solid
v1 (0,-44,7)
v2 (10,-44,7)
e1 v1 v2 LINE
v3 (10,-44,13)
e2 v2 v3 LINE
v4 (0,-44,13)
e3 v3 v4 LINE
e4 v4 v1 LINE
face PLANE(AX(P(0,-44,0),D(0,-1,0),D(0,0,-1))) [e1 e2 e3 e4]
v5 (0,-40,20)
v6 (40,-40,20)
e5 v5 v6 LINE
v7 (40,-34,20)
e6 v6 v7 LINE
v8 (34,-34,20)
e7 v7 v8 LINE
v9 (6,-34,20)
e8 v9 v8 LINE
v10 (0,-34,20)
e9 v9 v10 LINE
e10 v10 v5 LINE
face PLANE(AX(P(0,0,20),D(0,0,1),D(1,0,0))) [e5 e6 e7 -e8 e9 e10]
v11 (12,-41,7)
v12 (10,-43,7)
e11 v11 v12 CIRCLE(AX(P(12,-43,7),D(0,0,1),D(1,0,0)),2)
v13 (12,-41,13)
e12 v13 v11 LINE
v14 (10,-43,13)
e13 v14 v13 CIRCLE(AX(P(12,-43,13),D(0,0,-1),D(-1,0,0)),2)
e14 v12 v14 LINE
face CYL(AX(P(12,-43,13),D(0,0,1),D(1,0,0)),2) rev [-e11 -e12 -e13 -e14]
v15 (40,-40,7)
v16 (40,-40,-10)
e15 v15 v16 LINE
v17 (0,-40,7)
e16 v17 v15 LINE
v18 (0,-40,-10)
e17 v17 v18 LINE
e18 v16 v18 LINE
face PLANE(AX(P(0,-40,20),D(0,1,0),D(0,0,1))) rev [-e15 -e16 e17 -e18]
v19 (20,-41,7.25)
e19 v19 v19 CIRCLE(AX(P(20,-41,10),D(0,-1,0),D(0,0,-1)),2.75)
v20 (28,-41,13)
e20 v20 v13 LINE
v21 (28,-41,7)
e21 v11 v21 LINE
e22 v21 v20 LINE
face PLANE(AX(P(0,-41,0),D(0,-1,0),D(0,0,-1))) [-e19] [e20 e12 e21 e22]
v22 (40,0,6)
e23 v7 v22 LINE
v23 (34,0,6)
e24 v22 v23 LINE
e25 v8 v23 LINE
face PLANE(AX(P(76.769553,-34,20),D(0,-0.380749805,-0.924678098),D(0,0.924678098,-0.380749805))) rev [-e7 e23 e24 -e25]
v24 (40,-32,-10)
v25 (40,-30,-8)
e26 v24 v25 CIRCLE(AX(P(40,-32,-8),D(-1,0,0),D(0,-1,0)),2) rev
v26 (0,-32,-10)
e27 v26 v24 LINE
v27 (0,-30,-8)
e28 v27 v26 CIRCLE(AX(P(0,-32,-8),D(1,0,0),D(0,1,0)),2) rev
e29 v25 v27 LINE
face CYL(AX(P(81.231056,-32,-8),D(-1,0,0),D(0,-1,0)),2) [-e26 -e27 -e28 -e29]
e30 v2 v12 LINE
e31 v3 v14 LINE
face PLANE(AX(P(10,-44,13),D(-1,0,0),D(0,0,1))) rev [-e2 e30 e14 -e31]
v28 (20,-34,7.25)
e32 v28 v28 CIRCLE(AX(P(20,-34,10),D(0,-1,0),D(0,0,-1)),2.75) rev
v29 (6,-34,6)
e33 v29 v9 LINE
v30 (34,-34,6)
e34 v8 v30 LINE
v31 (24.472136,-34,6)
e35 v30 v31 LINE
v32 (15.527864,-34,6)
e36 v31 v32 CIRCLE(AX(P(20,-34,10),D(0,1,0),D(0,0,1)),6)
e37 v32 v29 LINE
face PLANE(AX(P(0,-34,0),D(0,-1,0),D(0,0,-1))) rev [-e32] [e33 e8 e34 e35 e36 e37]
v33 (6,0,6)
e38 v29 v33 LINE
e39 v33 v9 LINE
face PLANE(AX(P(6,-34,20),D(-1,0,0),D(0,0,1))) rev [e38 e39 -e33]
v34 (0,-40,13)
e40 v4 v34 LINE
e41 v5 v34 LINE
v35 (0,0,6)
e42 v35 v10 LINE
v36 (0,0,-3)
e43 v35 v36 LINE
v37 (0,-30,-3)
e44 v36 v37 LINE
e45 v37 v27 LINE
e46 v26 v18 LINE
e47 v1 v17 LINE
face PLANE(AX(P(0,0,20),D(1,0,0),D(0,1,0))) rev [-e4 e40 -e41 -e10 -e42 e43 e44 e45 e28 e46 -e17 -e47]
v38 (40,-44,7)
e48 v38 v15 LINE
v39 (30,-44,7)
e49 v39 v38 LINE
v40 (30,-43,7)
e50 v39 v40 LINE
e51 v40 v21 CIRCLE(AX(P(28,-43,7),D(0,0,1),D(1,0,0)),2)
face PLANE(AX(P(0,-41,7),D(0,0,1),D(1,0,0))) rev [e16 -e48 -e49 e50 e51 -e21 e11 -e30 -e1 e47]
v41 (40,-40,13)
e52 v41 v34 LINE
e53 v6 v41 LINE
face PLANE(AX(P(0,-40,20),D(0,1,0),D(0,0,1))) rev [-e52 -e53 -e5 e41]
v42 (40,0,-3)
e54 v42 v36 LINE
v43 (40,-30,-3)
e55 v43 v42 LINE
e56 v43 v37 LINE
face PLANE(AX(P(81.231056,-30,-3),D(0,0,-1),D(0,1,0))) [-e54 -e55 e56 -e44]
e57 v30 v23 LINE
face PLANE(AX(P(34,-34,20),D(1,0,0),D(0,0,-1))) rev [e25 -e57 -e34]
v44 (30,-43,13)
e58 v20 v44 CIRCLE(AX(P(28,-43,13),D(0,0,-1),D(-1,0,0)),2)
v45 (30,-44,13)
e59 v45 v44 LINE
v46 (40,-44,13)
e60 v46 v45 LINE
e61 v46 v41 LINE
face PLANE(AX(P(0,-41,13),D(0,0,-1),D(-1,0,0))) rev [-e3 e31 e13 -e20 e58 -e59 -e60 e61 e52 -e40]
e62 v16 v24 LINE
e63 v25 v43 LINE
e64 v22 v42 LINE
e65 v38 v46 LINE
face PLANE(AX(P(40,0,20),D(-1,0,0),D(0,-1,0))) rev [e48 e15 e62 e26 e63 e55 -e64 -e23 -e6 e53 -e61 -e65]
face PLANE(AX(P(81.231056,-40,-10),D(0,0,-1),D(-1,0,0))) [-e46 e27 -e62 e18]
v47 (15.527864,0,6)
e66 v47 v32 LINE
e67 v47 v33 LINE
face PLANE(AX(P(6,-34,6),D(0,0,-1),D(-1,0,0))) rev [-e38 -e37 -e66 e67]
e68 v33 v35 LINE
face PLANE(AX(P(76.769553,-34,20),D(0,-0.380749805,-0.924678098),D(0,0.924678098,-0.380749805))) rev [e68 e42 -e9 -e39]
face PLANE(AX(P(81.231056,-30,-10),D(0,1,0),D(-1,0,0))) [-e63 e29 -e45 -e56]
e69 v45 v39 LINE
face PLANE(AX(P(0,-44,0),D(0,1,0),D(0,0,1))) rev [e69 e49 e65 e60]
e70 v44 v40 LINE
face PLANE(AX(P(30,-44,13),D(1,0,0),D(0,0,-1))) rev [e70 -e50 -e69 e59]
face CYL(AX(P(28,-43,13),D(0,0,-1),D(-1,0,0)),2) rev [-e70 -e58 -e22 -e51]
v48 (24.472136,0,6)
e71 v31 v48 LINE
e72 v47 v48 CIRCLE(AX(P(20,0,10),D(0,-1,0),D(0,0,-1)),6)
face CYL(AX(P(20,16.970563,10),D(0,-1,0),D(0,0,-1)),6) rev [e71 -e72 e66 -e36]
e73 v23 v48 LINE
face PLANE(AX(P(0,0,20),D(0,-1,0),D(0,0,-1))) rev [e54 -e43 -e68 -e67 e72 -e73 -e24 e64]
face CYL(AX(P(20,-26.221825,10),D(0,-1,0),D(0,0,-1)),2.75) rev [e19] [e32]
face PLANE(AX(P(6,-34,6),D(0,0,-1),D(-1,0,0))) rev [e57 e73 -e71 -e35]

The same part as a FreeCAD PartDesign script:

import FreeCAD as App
import Part
import Sketcher
from FreeCAD import Vector
Q = App.Units.Quantity


def edges_at(feature, points):
    """Names of the edges that pass closest to the given points."""
    edges = feature.Shape.Edges
    near = lambda p: min(range(len(edges)), key=lambda i: edges[i].distToShape(Part.Vertex(*p))[0])
    return sorted({f"Edge{near(p) + 1}" for p in points})

doc = App.newDocument("Part")
body = doc.addObject("PartDesign::Body", "Body")

# Sketch on XY plane
sketch1 = body.newObject("Sketcher::SketchObject", "Sketch")
sketch1.AttachmentSupport = (doc.getObject("XY_Plane"), [""])
sketch1.MapMode = "FlatFace"
sketch1.addGeometry(Part.LineSegment(Vector(0, 0, 0), Vector(0, -40, 0)), False)
sketch1.addGeometry(Part.LineSegment(Vector(0, -40, 0), Vector(40, -40, 0)), False)
sketch1.addGeometry(Part.LineSegment(Vector(40, -40, 0), Vector(40, 0, 0)), False)
sketch1.addGeometry(Part.LineSegment(Vector(40, 0, 0), Vector(0, 0, 0)), False)
sketch1.addConstraint(Sketcher.Constraint("Coincident", 0, 2, 1, 1))
sketch1.addConstraint(Sketcher.Constraint("Coincident", 1, 2, 2, 1))
sketch1.addConstraint(Sketcher.Constraint("Coincident", 2, 2, 3, 1))
sketch1.addConstraint(Sketcher.Constraint("Coincident", 3, 2, 0, 1))
sketch1.addConstraint(Sketcher.Constraint("Vertical", 0))
sketch1.addConstraint(Sketcher.Constraint("Horizontal", 1))
sketch1.addConstraint(Sketcher.Constraint("Vertical", 2))
sketch1.addConstraint(Sketcher.Constraint("Horizontal", 3))
sketch1.addConstraint(Sketcher.Constraint("Coincident", 3, 2, -1, 1))
sketch1.addConstraint(Sketcher.Constraint("Equal", 3, 0))
sketch1.addConstraint(Sketcher.Constraint("DistanceX", 1, 1, 1, 2, Q("40 mm")))
pad1 = body.newObject("PartDesign::Pad", "Pad")
pad1.Profile = sketch1
pad1.Length = 20

# Sketch on XZ plane
sketch2 = body.newObject("Sketcher::SketchObject", "Sketch001")
sketch2.AttachmentSupport = (doc.getObject("XZ_Plane"), [""])
sketch2.MapMode = "FlatFace"
sketch2.addGeometry(Part.LineSegment(Vector(6, 6, 0), Vector(6, 20, 0)), False)
sketch2.addGeometry(Part.LineSegment(Vector(6, 20, 0), Vector(34, 20, 0)), False)
sketch2.addGeometry(Part.LineSegment(Vector(34, 20, 0), Vector(34, 6, 0)), False)
sketch2.addGeometry(Part.LineSegment(Vector(34, 6, 0), Vector(6, 6, 0)), False)
sketch2.addConstraint(Sketcher.Constraint("Coincident", 0, 2, 1, 1))
sketch2.addConstraint(Sketcher.Constraint("Coincident", 1, 2, 2, 1))
sketch2.addConstraint(Sketcher.Constraint("Coincident", 2, 2, 3, 1))
sketch2.addConstraint(Sketcher.Constraint("Coincident", 3, 2, 0, 1))
sketch2.addConstraint(Sketcher.Constraint("Vertical", 0))
sketch2.addConstraint(Sketcher.Constraint("Horizontal", 1))
sketch2.addConstraint(Sketcher.Constraint("Vertical", 2))
sketch2.addConstraint(Sketcher.Constraint("Horizontal", 3))
sketch2.addConstraint(Sketcher.Constraint("DistanceX", 1, 1, 1, 2, Q("28 mm")))
sketch2.addConstraint(Sketcher.Constraint("DistanceY", 0, 1, 0, 2, Q("14 mm")))
sketch2.addConstraint(Sketcher.Constraint("DistanceX", -1, 1, 0, 2, Q("6 mm")))
sketch2.addConstraint(Sketcher.Constraint("DistanceY", -1, 1, 0, 2, Q("20 mm")))
pocket1 = body.newObject("PartDesign::Pocket", "Pocket")
pocket1.Profile = sketch2
pocket1.Length = 34
pocket1.Reversed = True

# Sketch on YZ plane
sketch3 = body.newObject("Sketcher::SketchObject", "Sketch002")
sketch3.AttachmentSupport = (doc.getObject("YZ_Plane"), [""])
sketch3.MapMode = "FlatFace"
sketch3.addGeometry(Part.LineSegment(Vector(-34, 20, 0), Vector(0, 20, 0)), False)
sketch3.addGeometry(Part.LineSegment(Vector(0, 20, 0), Vector(0, 6, 0)), False)
sketch3.addGeometry(Part.LineSegment(Vector(0, 6, 0), Vector(-34, 20, 0)), False)
sketch3.addConstraint(Sketcher.Constraint("Coincident", 0, 2, 1, 1))
sketch3.addConstraint(Sketcher.Constraint("Coincident", 1, 2, 2, 1))
sketch3.addConstraint(Sketcher.Constraint("Coincident", 2, 2, 0, 1))
sketch3.addConstraint(Sketcher.Constraint("Horizontal", 0))
sketch3.addConstraint(Sketcher.Constraint("Vertical", 1))
sketch3.addConstraint(Sketcher.Constraint("PointOnObject", 0, 2, -2))
sketch3.addConstraint(Sketcher.Constraint("DistanceX", 0, 1, 0, 2, Q("34 mm")))
sketch3.addConstraint(Sketcher.Constraint("DistanceY", 1, 2, 1, 1, Q("14 mm")))
sketch3.addConstraint(Sketcher.Constraint("DistanceY", -1, 1, 0, 2, Q("20 mm")))
pocket2 = body.newObject("PartDesign::Pocket", "Pocket001")
pocket2.Profile = sketch3
pocket2.Length = 40
pocket2.Reversed = True

# Sketch on XZ plane
sketch4 = body.newObject("Sketcher::SketchObject", "Sketch003")
sketch4.AttachmentSupport = (doc.getObject("XZ_Plane"), [""])
sketch4.MapMode = "FlatFace"
sketch4.AttachmentOffset = App.Placement(Vector(0, 0, 40), App.Rotation())
sketch4.addGeometry(Part.LineSegment(Vector(0, 13, 0), Vector(0, 7, 0)), False)
sketch4.addGeometry(Part.LineSegment(Vector(0, 7, 0), Vector(40, 7, 0)), False)
sketch4.addGeometry(Part.LineSegment(Vector(40, 7, 0), Vector(40, 13, 0)), False)
sketch4.addGeometry(Part.LineSegment(Vector(40, 13, 0), Vector(0, 13, 0)), False)
sketch4.addConstraint(Sketcher.Constraint("Coincident", 0, 2, 1, 1))
sketch4.addConstraint(Sketcher.Constraint("Coincident", 1, 2, 2, 1))
sketch4.addConstraint(Sketcher.Constraint("Coincident", 2, 2, 3, 1))
sketch4.addConstraint(Sketcher.Constraint("Coincident", 3, 2, 0, 1))
sketch4.addConstraint(Sketcher.Constraint("Vertical", 0))
sketch4.addConstraint(Sketcher.Constraint("Horizontal", 1))
sketch4.addConstraint(Sketcher.Constraint("Vertical", 2))
sketch4.addConstraint(Sketcher.Constraint("Horizontal", 3))
sketch4.addConstraint(Sketcher.Constraint("PointOnObject", 0, 2, -2))
sketch4.addConstraint(Sketcher.Constraint("DistanceX", 1, 1, 1, 2, Q("40 mm")))
sketch4.addConstraint(Sketcher.Constraint("DistanceY", 0, 2, 0, 1, Q("6 mm")))
sketch4.addConstraint(Sketcher.Constraint("DistanceY", -1, 1, 0, 2, Q("7 mm")))
pad2 = body.newObject("PartDesign::Pad", "Pad001")
pad2.Profile = sketch4
pad2.Length = 1

# Sketch on XZ plane
sketch5 = body.newObject("Sketcher::SketchObject", "Sketch004")
sketch5.AttachmentSupport = (doc.getObject("XZ_Plane"), [""])
sketch5.MapMode = "FlatFace"
sketch5.AttachmentOffset = App.Placement(Vector(0, 0, 41), App.Rotation())
sketch5.addGeometry(Part.Circle(Vector(20, 10, 0), Vector(0, 0, 1), 2.75), False)
sketch5.addConstraint(Sketcher.Constraint("Diameter", 0, Q("5.5 mm")))
sketch5.addConstraint(Sketcher.Constraint("DistanceX", -1, 1, 0, 3, Q("20 mm")))
sketch5.addConstraint(Sketcher.Constraint("DistanceY", -1, 1, 0, 3, Q("10 mm")))
pocket3 = body.newObject("PartDesign::Pocket", "Pocket002")
pocket3.Profile = sketch5
pocket3.Length = 7

# Sketch on XZ plane
sketch6 = body.newObject("Sketcher::SketchObject", "Sketch005")
sketch6.AttachmentSupport = (doc.getObject("XZ_Plane"), [""])
sketch6.MapMode = "FlatFace"
sketch6.AttachmentOffset = App.Placement(Vector(0, 0, 34), App.Rotation())
sketch6.addGeometry(Part.Circle(Vector(20, 10, 0), Vector(0, 0, 1), 6), False)
sketch6.addConstraint(Sketcher.Constraint("Diameter", 0, Q("12 mm")))
sketch6.addConstraint(Sketcher.Constraint("DistanceX", -1, 1, 0, 3, Q("20 mm")))
sketch6.addConstraint(Sketcher.Constraint("DistanceY", -1, 1, 0, 3, Q("10 mm")))
pocket4 = body.newObject("PartDesign::Pocket", "Pocket003")
pocket4.Profile = sketch6
pocket4.Length = 34

# Sketch on XZ plane
sketch7 = body.newObject("Sketcher::SketchObject", "Sketch006")
sketch7.AttachmentSupport = (doc.getObject("XZ_Plane"), [""])
sketch7.MapMode = "FlatFace"
sketch7.AttachmentOffset = App.Placement(Vector(0, 0, 41), App.Rotation())
sketch7.addGeometry(Part.LineSegment(Vector(0, 13, 0), Vector(0, 7, 0)), False)
sketch7.addGeometry(Part.LineSegment(Vector(0, 7, 0), Vector(10, 7, 0)), False)
sketch7.addGeometry(Part.LineSegment(Vector(10, 7, 0), Vector(10, 13, 0)), False)
sketch7.addGeometry(Part.LineSegment(Vector(10, 13, 0), Vector(0, 13, 0)), False)
sketch7.addGeometry(Part.LineSegment(Vector(30, 13, 0), Vector(30, 7, 0)), False)
sketch7.addGeometry(Part.LineSegment(Vector(30, 7, 0), Vector(40, 7, 0)), False)
sketch7.addGeometry(Part.LineSegment(Vector(40, 7, 0), Vector(40, 13, 0)), False)
sketch7.addGeometry(Part.LineSegment(Vector(40, 13, 0), Vector(30, 13, 0)), False)
sketch7.addConstraint(Sketcher.Constraint("Coincident", 0, 2, 1, 1))
sketch7.addConstraint(Sketcher.Constraint("Coincident", 1, 2, 2, 1))
sketch7.addConstraint(Sketcher.Constraint("Coincident", 2, 2, 3, 1))
sketch7.addConstraint(Sketcher.Constraint("Coincident", 3, 2, 0, 1))
sketch7.addConstraint(Sketcher.Constraint("Coincident", 4, 2, 5, 1))
sketch7.addConstraint(Sketcher.Constraint("Coincident", 5, 2, 6, 1))
sketch7.addConstraint(Sketcher.Constraint("Coincident", 6, 2, 7, 1))
sketch7.addConstraint(Sketcher.Constraint("Coincident", 7, 2, 4, 1))
sketch7.addConstraint(Sketcher.Constraint("Vertical", 0))
sketch7.addConstraint(Sketcher.Constraint("Horizontal", 1))
sketch7.addConstraint(Sketcher.Constraint("Vertical", 2))
sketch7.addConstraint(Sketcher.Constraint("Horizontal", 3))
sketch7.addConstraint(Sketcher.Constraint("Vertical", 4))
sketch7.addConstraint(Sketcher.Constraint("Horizontal", 5))
sketch7.addConstraint(Sketcher.Constraint("Vertical", 6))
sketch7.addConstraint(Sketcher.Constraint("Horizontal", 7))
sketch7.addConstraint(Sketcher.Constraint("PointOnObject", 0, 2, -2))
sketch7.addConstraint(Sketcher.Constraint("Horizontal", 1, 2, 4, 2))
sketch7.addConstraint(Sketcher.Constraint("Horizontal", 3, 2, 6, 2))
sketch7.addConstraint(Sketcher.Constraint("Equal", 3, 5))
sketch7.addConstraint(Sketcher.Constraint("DistanceX", 1, 1, 1, 2, Q("10 mm")))
sketch7.addConstraint(Sketcher.Constraint("DistanceY", 0, 2, 0, 1, Q("6 mm")))
sketch7.addConstraint(Sketcher.Constraint("DistanceY", -1, 1, 0, 2, Q("7 mm")))
sketch7.addConstraint(Sketcher.Constraint("DistanceX", -1, 1, 4, 2, Q("30 mm")))
pad3 = body.newObject("PartDesign::Pad", "Pad002")
pad3.Profile = sketch7
pad3.Length = 3
doc.recompute()

fillet = body.newObject("PartDesign::Fillet", "Fillet")
fillet.Base = (pad3, edges_at(pad3, [(10, -41, 10), (30, -41, 10)]))
fillet.Radius = 2

# Sketch on YZ plane
sketch8 = body.newObject("Sketcher::SketchObject", "Sketch007")
sketch8.AttachmentSupport = (doc.getObject("YZ_Plane"), [""])
sketch8.MapMode = "FlatFace"
sketch8.addGeometry(Part.LineSegment(Vector(-40, -10, 0), Vector(-40, 0, 0)), False)
sketch8.addGeometry(Part.LineSegment(Vector(-40, 0, 0), Vector(0, 0, 0)), False)
sketch8.addGeometry(Part.LineSegment(Vector(0, 0, 0), Vector(0, -3, 0)), False)
sketch8.addGeometry(Part.LineSegment(Vector(0, -3, 0), Vector(-30, -3, 0)), False)
sketch8.addGeometry(Part.LineSegment(Vector(-30, -3, 0), Vector(-30, -10, 0)), False)
sketch8.addGeometry(Part.LineSegment(Vector(-30, -10, 0), Vector(-40, -10, 0)), False)
sketch8.addConstraint(Sketcher.Constraint("Coincident", 0, 2, 1, 1))
sketch8.addConstraint(Sketcher.Constraint("Coincident", 1, 2, 2, 1))
sketch8.addConstraint(Sketcher.Constraint("Coincident", 2, 2, 3, 1))
sketch8.addConstraint(Sketcher.Constraint("Coincident", 3, 2, 4, 1))
sketch8.addConstraint(Sketcher.Constraint("Coincident", 4, 2, 5, 1))
sketch8.addConstraint(Sketcher.Constraint("Coincident", 5, 2, 0, 1))
sketch8.addConstraint(Sketcher.Constraint("Vertical", 0))
sketch8.addConstraint(Sketcher.Constraint("Horizontal", 1))
sketch8.addConstraint(Sketcher.Constraint("Vertical", 2))
sketch8.addConstraint(Sketcher.Constraint("Horizontal", 3))
sketch8.addConstraint(Sketcher.Constraint("Vertical", 4))
sketch8.addConstraint(Sketcher.Constraint("Horizontal", 5))
sketch8.addConstraint(Sketcher.Constraint("Coincident", 1, 2, -1, 1))
sketch8.addConstraint(Sketcher.Constraint("Equal", 5, 0))
sketch8.addConstraint(Sketcher.Constraint("DistanceX", 1, 1, 1, 2, Q("40 mm")))
sketch8.addConstraint(Sketcher.Constraint("DistanceX", 3, 2, 3, 1, Q("30 mm")))
sketch8.addConstraint(Sketcher.Constraint("DistanceY", 2, 2, 2, 1, Q("3 mm")))
pad4 = body.newObject("PartDesign::Pad", "Pad003")
pad4.Profile = sketch8
pad4.Length = 40
doc.recompute()

fillet2 = body.newObject("PartDesign::Fillet", "Fillet001")
fillet2.Base = (pad4, edges_at(pad4, [(20, -30, -10)]))
fillet2.Radius = 2

doc.recompute()
